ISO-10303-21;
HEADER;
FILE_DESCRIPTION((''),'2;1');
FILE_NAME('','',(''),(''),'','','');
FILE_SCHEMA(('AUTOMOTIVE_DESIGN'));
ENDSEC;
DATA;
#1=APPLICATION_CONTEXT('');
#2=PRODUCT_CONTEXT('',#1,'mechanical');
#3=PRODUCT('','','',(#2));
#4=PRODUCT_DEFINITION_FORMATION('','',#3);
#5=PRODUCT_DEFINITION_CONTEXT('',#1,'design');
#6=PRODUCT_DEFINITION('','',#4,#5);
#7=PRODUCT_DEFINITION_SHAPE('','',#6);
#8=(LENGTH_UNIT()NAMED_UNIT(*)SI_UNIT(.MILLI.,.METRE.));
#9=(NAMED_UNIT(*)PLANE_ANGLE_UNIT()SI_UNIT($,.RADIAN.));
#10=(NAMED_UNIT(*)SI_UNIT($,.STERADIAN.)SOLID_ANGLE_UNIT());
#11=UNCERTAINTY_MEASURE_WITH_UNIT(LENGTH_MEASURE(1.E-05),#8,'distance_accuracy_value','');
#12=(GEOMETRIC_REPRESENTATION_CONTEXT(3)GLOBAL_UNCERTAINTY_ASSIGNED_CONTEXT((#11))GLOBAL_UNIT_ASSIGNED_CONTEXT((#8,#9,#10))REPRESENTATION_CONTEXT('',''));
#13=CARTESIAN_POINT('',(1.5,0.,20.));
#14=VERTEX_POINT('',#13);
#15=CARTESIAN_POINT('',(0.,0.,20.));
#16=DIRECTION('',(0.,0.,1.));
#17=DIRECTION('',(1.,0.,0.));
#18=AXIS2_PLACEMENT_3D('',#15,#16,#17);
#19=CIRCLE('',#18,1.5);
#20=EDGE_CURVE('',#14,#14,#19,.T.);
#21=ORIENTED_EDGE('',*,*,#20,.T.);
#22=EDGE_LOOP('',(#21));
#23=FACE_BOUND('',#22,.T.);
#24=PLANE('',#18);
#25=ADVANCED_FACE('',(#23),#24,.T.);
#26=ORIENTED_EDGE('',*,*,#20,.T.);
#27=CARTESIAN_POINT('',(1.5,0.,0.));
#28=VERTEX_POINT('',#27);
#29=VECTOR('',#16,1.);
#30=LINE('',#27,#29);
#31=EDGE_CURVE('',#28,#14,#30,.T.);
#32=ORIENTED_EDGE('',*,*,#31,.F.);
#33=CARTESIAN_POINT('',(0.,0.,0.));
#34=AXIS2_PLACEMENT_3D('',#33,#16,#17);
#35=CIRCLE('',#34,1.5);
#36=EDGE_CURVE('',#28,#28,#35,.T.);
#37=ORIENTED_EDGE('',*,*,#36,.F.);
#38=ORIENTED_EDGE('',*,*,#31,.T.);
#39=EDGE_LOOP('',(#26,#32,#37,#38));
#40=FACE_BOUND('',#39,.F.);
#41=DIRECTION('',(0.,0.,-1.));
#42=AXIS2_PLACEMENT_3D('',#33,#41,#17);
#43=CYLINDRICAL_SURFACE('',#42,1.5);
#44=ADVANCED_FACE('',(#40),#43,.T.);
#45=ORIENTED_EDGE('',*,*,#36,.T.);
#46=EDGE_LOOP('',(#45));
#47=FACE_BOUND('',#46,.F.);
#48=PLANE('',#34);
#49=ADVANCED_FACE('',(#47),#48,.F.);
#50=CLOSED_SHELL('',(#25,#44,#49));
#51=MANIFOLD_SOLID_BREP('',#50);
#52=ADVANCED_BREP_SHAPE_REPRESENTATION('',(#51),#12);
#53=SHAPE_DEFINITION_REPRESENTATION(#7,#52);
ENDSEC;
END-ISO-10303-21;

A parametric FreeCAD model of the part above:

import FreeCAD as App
import Part
import Sketcher
Q = App.Units.Quantity

doc = App.newDocument("Part")
body = doc.addObject("PartDesign::Body", "Body")

# Sketch on XY plane
sketch1 = doc.addObject("Sketcher::SketchObject", "Sketch")
body.addObject(sketch1)
sketch1.AttachmentSupport = (doc.XY_Plane, [""])
sketch1.MapMode = "FlatFace"
sketch1.addGeometry(Part.Circle(App.Vector(0, 0, 0), App.Vector(0, 0, 1), 1.5), False)
sketch1.addConstraint([
    Sketcher.Constraint("Coincident", 0, 3, -1, 1),
    Sketcher.Constraint("Diameter", 0, Q("3 mm")),
])
pad1 = doc.addObject("PartDesign::Pad", "Pad")
body.addObject(pad1)
pad1.Profile = sketch1
pad1.Length = 20

doc.recompute()
